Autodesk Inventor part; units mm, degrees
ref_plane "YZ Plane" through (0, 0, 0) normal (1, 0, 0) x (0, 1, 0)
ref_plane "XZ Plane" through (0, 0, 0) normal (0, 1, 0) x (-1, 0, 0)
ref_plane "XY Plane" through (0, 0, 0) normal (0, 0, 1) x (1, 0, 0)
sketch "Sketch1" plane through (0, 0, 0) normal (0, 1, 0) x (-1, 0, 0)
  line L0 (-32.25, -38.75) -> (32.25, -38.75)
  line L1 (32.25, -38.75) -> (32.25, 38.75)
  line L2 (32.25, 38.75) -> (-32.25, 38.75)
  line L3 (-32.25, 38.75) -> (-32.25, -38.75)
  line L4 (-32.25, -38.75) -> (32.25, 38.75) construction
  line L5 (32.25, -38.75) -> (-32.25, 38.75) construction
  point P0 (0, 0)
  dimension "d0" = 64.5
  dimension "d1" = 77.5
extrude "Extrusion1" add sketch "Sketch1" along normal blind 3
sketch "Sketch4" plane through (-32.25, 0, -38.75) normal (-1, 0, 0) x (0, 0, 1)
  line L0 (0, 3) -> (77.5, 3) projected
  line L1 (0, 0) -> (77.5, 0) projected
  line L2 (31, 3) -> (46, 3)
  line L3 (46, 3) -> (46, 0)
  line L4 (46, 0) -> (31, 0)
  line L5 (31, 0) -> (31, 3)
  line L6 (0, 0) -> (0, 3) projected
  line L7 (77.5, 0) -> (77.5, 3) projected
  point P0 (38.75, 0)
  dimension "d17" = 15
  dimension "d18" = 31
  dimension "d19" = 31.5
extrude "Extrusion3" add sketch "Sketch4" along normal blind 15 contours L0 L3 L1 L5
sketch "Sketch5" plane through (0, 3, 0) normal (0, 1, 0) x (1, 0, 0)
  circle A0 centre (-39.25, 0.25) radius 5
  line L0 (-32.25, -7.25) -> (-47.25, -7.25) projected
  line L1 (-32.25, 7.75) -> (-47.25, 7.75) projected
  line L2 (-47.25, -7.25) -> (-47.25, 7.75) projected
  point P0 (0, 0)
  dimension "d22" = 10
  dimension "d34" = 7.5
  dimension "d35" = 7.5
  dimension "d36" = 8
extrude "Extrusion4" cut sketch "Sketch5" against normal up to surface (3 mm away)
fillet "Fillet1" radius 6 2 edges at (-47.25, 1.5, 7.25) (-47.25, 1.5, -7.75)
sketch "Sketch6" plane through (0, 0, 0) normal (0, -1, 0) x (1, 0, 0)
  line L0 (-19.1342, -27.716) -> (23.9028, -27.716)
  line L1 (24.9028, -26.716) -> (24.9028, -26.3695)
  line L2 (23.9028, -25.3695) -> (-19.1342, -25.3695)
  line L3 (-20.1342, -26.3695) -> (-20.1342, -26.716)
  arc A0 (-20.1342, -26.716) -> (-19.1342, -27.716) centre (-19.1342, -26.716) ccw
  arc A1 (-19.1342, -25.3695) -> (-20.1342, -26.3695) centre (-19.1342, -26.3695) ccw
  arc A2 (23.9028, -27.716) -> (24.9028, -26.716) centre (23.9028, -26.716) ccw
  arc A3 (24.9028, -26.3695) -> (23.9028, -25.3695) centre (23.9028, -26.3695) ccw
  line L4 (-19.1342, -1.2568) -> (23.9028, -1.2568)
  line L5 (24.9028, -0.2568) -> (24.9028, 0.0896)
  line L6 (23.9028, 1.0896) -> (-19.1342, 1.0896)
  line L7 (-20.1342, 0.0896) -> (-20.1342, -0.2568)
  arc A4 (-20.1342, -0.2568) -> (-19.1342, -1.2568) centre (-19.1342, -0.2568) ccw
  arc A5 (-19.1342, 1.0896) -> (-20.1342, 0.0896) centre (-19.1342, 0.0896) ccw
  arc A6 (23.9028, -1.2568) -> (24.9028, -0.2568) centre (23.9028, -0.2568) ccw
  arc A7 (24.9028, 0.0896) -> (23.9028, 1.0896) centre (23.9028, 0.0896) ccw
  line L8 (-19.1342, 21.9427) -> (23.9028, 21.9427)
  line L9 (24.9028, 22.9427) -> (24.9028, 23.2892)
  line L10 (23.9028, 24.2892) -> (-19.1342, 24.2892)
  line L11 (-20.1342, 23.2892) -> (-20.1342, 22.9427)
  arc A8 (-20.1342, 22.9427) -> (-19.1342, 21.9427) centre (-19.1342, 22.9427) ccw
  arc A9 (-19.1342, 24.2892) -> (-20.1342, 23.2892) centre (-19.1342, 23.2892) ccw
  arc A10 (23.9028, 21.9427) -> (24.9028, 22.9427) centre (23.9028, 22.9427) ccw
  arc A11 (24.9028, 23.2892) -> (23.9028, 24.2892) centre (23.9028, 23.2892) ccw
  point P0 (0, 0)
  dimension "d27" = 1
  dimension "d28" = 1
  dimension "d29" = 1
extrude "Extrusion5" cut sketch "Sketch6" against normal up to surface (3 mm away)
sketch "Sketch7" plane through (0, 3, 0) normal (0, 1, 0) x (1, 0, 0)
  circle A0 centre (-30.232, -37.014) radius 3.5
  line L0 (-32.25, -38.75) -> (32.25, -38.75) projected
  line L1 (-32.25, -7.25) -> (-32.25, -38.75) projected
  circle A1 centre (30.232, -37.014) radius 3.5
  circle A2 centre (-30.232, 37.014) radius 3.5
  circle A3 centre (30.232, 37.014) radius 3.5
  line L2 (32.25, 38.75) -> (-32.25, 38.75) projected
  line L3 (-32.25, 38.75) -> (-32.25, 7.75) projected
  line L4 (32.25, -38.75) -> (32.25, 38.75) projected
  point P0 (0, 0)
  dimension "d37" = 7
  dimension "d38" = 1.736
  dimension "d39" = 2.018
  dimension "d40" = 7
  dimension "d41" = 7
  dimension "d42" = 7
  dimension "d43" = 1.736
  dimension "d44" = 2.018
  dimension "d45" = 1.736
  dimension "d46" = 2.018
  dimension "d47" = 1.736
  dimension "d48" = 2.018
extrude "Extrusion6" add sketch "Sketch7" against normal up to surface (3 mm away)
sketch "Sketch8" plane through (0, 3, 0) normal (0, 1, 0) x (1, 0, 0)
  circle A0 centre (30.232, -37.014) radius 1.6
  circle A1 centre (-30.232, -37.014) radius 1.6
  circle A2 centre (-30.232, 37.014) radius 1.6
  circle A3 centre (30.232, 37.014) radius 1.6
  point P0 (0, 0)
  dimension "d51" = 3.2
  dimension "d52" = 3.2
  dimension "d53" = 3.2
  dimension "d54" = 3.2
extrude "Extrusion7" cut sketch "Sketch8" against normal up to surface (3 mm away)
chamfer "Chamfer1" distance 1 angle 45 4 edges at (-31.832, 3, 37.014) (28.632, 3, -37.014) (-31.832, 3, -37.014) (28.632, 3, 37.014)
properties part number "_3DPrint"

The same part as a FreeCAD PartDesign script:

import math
import FreeCAD as App
import Part
import Sketcher

V = App.Vector


def edges_at(feature, points):
    """Names of the edges that pass closest to the given points."""
    edges = feature.Shape.Edges
    near = lambda p: min(range(len(edges)), key=lambda i: edges[i].distToShape(Part.Vertex(*p))[0])
    return sorted({f"Edge{near(p) + 1}" for p in points})


def add_polygon(sketch, points):
    """Adds a closed chain of lines whose ends are joined by coincident constraints."""
    first, n = sketch.GeometryCount, len(points)
    for a, b in zip(points, points[1:] + points[:1]):
        sketch.addGeometry(Part.LineSegment(App.Vector(*a, 0), App.Vector(*b, 0)), False)
    for i in range(n):
        sketch.addConstraint(Sketcher.Constraint("Coincident", first + i, 2, first + (i + 1) % n, 1))

doc = App.newDocument("Part")
body = doc.addObject("PartDesign::Body", "Body")

# Sketch on XZ plane
sketch1 = doc.addObject("Sketcher::SketchObject", "Sketch")
body.addObject(sketch1)
sketch1.AttachmentSupport = (doc.XZ_Plane, [""])
sketch1.MapMode = "FlatFace"
add_polygon(sketch1, [(32, 39), (32, -39), (-32, -39), (-32, 39)])  # lines 0-3
sketch1.addConstraint([
    Sketcher.Constraint("Vertical", 0),
    Sketcher.Constraint("Horizontal", 1),
    Sketcher.Constraint("Vertical", 2),
    Sketcher.Constraint("Horizontal", 3),
    Sketcher.Constraint("Symmetric", 0, 2, 2, 2, -1, 1),
    Sketcher.Constraint("DistanceX", 1, 2, 1, 1, 64.5),
    Sketcher.Constraint("DistanceY", 0, 2, 0, 1, 77.5),
])
pad1 = doc.addObject("PartDesign::Pad", "Pad")
body.addObject(pad1)
pad1.Profile = sketch1
pad1.Length = 3
pad1.Reversed = True

# Sketch on YZ plane
sketch2 = doc.addObject("Sketcher::SketchObject", "Sketch001")
body.addObject(sketch2)
sketch2.AttachmentSupport = (doc.YZ_Plane, [""])
sketch2.MapMode = "FlatFace"
sketch2.AttachmentOffset = App.Placement(V(0, 0, -32.25), App.Rotation())
add_polygon(sketch2, [(3, 7.2), (3, -7.8), (0, -7.8), (0, 7.2)])  # lines 0-3
sketch2.addConstraint([
    Sketcher.Constraint("Vertical", 0),
    Sketcher.Constraint("Horizontal", 1),
    Sketcher.Constraint("Vertical", 2),
    Sketcher.Constraint("Horizontal", 3),
    Sketcher.Constraint("PointOnObject", 1, 2, -2),
    Sketcher.Constraint("DistanceY", 0, 2, 0, 1, 15.0),
    Sketcher.Constraint("DistanceX", 1, 2, 1, 1, 3.0),
    Sketcher.Constraint("DistanceY", 0, 2, -1, 1, 7.75),
])
pad2 = doc.addObject("PartDesign::Pad", "Pad001")
body.addObject(pad2)
pad2.Profile = sketch2
pad2.Length = 15
pad2.Reversed = True

# Sketch on XZ plane
sketch3 = doc.addObject("Sketcher::SketchObject", "Sketch002")
body.addObject(sketch3)
sketch3.AttachmentSupport = (doc.XZ_Plane, [""])
sketch3.MapMode = "FlatFace"
sketch3.AttachmentOffset = App.Placement(V(0, 0, -3), App.Rotation())
sketch3.addGeometry(Part.Circle(V(-39, 0, 0), V(0, 0, 1), 5), False)
sketch3.addConstraint([
    Sketcher.Constraint("Diameter", 0, 10.0),
    Sketcher.Constraint("DistanceX", 0, 3, -1, 1, 39.25),
    Sketcher.Constraint("DistanceY", 0, 3, -1, 1, 0.25),
])
pocket1 = doc.addObject("PartDesign::Pocket", "Pocket")
body.addObject(pocket1)
pocket1.Profile = sketch3
pocket1.Length = 3
pocket1.Reversed = True
doc.recompute()

fillet = doc.addObject("PartDesign::Fillet", "Fillet")
body.addObject(fillet)
fillet.Base = (pocket1, edges_at(pocket1, [(-47.25, 1.5, 7.25), (-47.25, 1.5, -7.75)]))
fillet.Radius = 6

# Sketch on XZ plane
sketch4 = doc.addObject("Sketcher::SketchObject", "Sketch003")
body.addObject(sketch4)
sketch4.AttachmentSupport = (doc.XZ_Plane, [""])
sketch4.MapMode = "FlatFace"
sketch4.addGeometry([
    Part.ArcOfCircle(Part.Circle(V(-19.13, -26.72, 0), V(0, 0, 1), 1), math.radians(180), math.radians(270)),  # 0
    Part.LineSegment(V(-19.13, -27.72, 0), V(23.9, -27.72, 0)),  # 1
    Part.ArcOfCircle(Part.Circle(V(23.9, -26.72, 0), V(0, 0, 1), 1), math.radians(-90), math.radians(0)),  # 2
    Part.LineSegment(V(24.9, -26.72, 0), V(24.9, -26.37, 0)),  # 3
    Part.ArcOfCircle(Part.Circle(V(23.9, -26.37, 0), V(0, 0, 1), 1), math.radians(0), math.radians(90)),  # 4
    Part.LineSegment(V(23.9, -25.37, 0), V(-19.13, -25.37, 0)),  # 5
    Part.ArcOfCircle(Part.Circle(V(-19.13, -26.37, 0), V(0, 0, 1), 1), math.radians(90), math.radians(180)),  # 6
    Part.LineSegment(V(-20.13, -26.37, 0), V(-20.13, -26.72, 0)),  # 7
    Part.ArcOfCircle(Part.Circle(V(-19.13, -0.26, 0), V(0, 0, 1), 1), math.radians(180), math.radians(270)),  # 8
    Part.LineSegment(V(-19.13, -1.26, 0), V(23.9, -1.26, 0)),  # 9
    Part.ArcOfCircle(Part.Circle(V(23.9, -0.26, 0), V(0, 0, 1), 1), math.radians(-90), math.radians(0)),  # 10
    Part.LineSegment(V(24.9, -0.26, 0), V(24.9, 0.09, 0)),  # 11
    Part.ArcOfCircle(Part.Circle(V(23.9, 0.09, 0), V(0, 0, 1), 1), math.radians(0), math.radians(90)),  # 12
    Part.LineSegment(V(23.9, 1.09, 0), V(-19.13, 1.09, 0)),  # 13
    Part.ArcOfCircle(Part.Circle(V(-19.13, 0.09, 0), V(0, 0, 1), 1), math.radians(90), math.radians(180)),  # 14
    Part.LineSegment(V(-20.13, 0.09, 0), V(-20.13, -0.26, 0)),  # 15
    Part.ArcOfCircle(Part.Circle(V(-19.13, 22.94, 0), V(0, 0, 1), 1), math.radians(180), math.radians(270)),  # 16
    Part.LineSegment(V(-19.13, 21.94, 0), V(23.9, 21.94, 0)),  # 17
    Part.ArcOfCircle(Part.Circle(V(23.9, 22.94, 0), V(0, 0, 1), 1), math.radians(-90), math.radians(0)),  # 18
    Part.LineSegment(V(24.9, 22.94, 0), V(24.9, 23.29, 0)),  # 19
    Part.ArcOfCircle(Part.Circle(V(23.9, 23.29, 0), V(0, 0, 1), 1), math.radians(0), math.radians(90)),  # 20
    Part.LineSegment(V(23.9, 24.29, 0), V(-19.13, 24.29, 0)),  # 21
    Part.ArcOfCircle(Part.Circle(V(-19.13, 23.29, 0), V(0, 0, 1), 1), math.radians(90), math.radians(180)),  # 22
    Part.LineSegment(V(-20.13, 23.29, 0), V(-20.13, 22.94, 0)),  # 23
], False)
sketch4.addConstraint([
    Sketcher.Constraint("Tangent", 0, 2, 1, 1),
    Sketcher.Constraint("Tangent", 1, 2, 2, 1),
    Sketcher.Constraint("Tangent", 2, 2, 3, 1),
    Sketcher.Constraint("Tangent", 3, 2, 4, 1),
    Sketcher.Constraint("Tangent", 4, 2, 5, 1),
    Sketcher.Constraint("Tangent", 5, 2, 6, 1),
    Sketcher.Constraint("Tangent", 6, 2, 7, 1),
    Sketcher.Constraint("Tangent", 7, 2, 0, 1),
    Sketcher.Constraint("Tangent", 8, 2, 9, 1),
    Sketcher.Constraint("Tangent", 9, 2, 10, 1),
    Sketcher.Constraint("Tangent", 10, 2, 11, 1),
    Sketcher.Constraint("Tangent", 11, 2, 12, 1),
    Sketcher.Constraint("Tangent", 12, 2, 13, 1),
    Sketcher.Constraint("Tangent", 13, 2, 14, 1),
    Sketcher.Constraint("Tangent", 14, 2, 15, 1),
    Sketcher.Constraint("Tangent", 15, 2, 8, 1),
    Sketcher.Constraint("Tangent", 16, 2, 17, 1),
    Sketcher.Constraint("Tangent", 17, 2, 18, 1),
    Sketcher.Constraint("Tangent", 18, 2, 19, 1),
    Sketcher.Constraint("Tangent", 19, 2, 20, 1),
    Sketcher.Constraint("Tangent", 20, 2, 21, 1),
    Sketcher.Constraint("Tangent", 21, 2, 22, 1),
    Sketcher.Constraint("Tangent", 22, 2, 23, 1),
    Sketcher.Constraint("Tangent", 23, 2, 16, 1),
    Sketcher.Constraint("Horizontal", 1),
    Sketcher.Constraint("Vertical", 3),
    Sketcher.Constraint("Horizontal", 5),
    Sketcher.Constraint("Vertical", 7),
    Sketcher.Constraint("Horizontal", 9),
    Sketcher.Constraint("Vertical", 11),
    Sketcher.Constraint("Horizontal", 13),
    Sketcher.Constraint("Vertical", 15),
    Sketcher.Constraint("Horizontal", 17),
    Sketcher.Constraint("Vertical", 19),
    Sketcher.Constraint("Horizontal", 21),
    Sketcher.Constraint("Vertical", 23),
    Sketcher.Constraint("Equal", 0, 2),
    Sketcher.Constraint("Equal", 2, 4),
    Sketcher.Constraint("Equal", 4, 6),
    Sketcher.Constraint("Equal", 6, 8),
    Sketcher.Constraint("Equal", 8, 10),
    Sketcher.Constraint("Equal", 10, 12),
    Sketcher.Constraint("Equal", 12, 14),
    Sketcher.Constraint("Equal", 14, 16),
    Sketcher.Constraint("Equal", 16, 18),
    Sketcher.Constraint("Equal", 18, 20),
    Sketcher.Constraint("Equal", 20, 22),
    Sketcher.Constraint("Vertical", 6, 3, 8, 3),
    Sketcher.Constraint("Vertical", 4, 3, 10, 3),
    Sketcher.Constraint("Vertical", 14, 3, 16, 3),
    Sketcher.Constraint("Vertical", 12, 3, 18, 3),
    Sketcher.Constraint("Equal", 7, 11),
    Sketcher.Constraint("Equal", 15, 19),
    Sketcher.Constraint("Radius", 0, 1.0),
    Sketcher.Constraint("DistanceX", 1, 1, 1, 2, 43.037),
    Sketcher.Constraint("DistanceY", 3, 1, 3, 2, 0.3465),
    Sketcher.Constraint("DistanceY", 0, 3, -1, 1, 26.716),
    Sketcher.Constraint("DistanceY", 4, 3, 12, 3, 26.459),
    Sketcher.Constraint("DistanceY", 14, 3, 16, 3, 22.853),
    Sketcher.Constraint("DistanceX", 0, 3, -1, 1, 19.1342),
])
pocket2 = doc.addObject("PartDesign::Pocket", "Pocket001")
body.addObject(pocket2)
pocket2.Profile = sketch4
pocket2.Length = 3

# Sketch on XZ plane
sketch5 = doc.addObject("Sketcher::SketchObject", "Sketch004")
body.addObject(sketch5)
sketch5.AttachmentSupport = (doc.XZ_Plane, [""])
sketch5.MapMode = "FlatFace"
sketch5.AttachmentOffset = App.Placement(V(0, 0, -3), App.Rotation())
sketch5.addGeometry([
    Part.Circle(V(-30.2, 37, 0), V(0, 0, 1), 3.5),
    Part.Circle(V(-30.2, -37, 0), V(0, 0, 1), 3.5),
    Part.Circle(V(30.2, -37, 0), V(0, 0, 1), 3.5),
    Part.Circle(V(30.2, 37, 0), V(0, 0, 1), 3.5),
], False)
sketch5.addConstraint([
    Sketcher.Constraint("Equal", 0, 1),
    Sketcher.Constraint("Equal", 1, 2),
    Sketcher.Constraint("Equal", 2, 3),
    Sketcher.Constraint("Symmetric", 0, 3, 2, 3, -1, 1),
    Sketcher.Constraint("Symmetric", 1, 3, 3, 3, -1, 1),
    Sketcher.Constraint("Symmetric", 1, 3, 2, 3, -2),
    Sketcher.Constraint("Diameter", 0, 7.0),
    Sketcher.Constraint("DistanceX", 0, 3, -1, 1, 30.232),
    Sketcher.Constraint("DistanceY", -1, 1, 0, 3, 37.014),
])
pad3 = doc.addObject("PartDesign::Pad", "Pad002")
body.addObject(pad3)
pad3.Profile = sketch5
pad3.Length = 3

# Sketch on XZ plane
sketch6 = doc.addObject("Sketcher::SketchObject", "Sketch005")
body.addObject(sketch6)
sketch6.AttachmentSupport = (doc.XZ_Plane, [""])
sketch6.MapMode = "FlatFace"
sketch6.AttachmentOffset = App.Placement(V(0, 0, -3), App.Rotation())
sketch6.addGeometry([
    Part.Circle(V(30.2, 37, 0), V(0, 0, 1), 1.6),
    Part.Circle(V(-30.2, 37, 0), V(0, 0, 1), 1.6),
    Part.Circle(V(-30.2, -37, 0), V(0, 0, 1), 1.6),
    Part.Circle(V(30.2, -37, 0), V(0, 0, 1), 1.6),
], False)
sketch6.addConstraint([
    Sketcher.Constraint("Equal", 0, 1),
    Sketcher.Constraint("Equal", 1, 2),
    Sketcher.Constraint("Equal", 2, 3),
    Sketcher.Constraint("Symmetric", 0, 3, 2, 3, -1, 1),
    Sketcher.Constraint("Symmetric", 1, 3, 3, 3, -1, 1),
    Sketcher.Constraint("Symmetric", 0, 3, 1, 3, -2),
    Sketcher.Constraint("Diameter", 0, 3.2),
    Sketcher.Constraint("DistanceX", -1, 1, 0, 3, 30.232),
    Sketcher.Constraint("DistanceY", -1, 1, 0, 3, 37.014),
])
pocket3 = doc.addObject("PartDesign::Pocket", "Pocket002")
body.addObject(pocket3)
pocket3.Profile = sketch6
pocket3.Length = 3
pocket3.Reversed = True
doc.recompute()

chamfer = doc.addObject("PartDesign::Chamfer", "Chamfer")
body.addObject(chamfer)
chamfer.Base = (pocket3, edges_at(pocket3, [
    (-31.832, 3, 37.014),
    (28.632, 3, -37.014),
    (-31.832, 3, -37.014),
    (28.632, 3, 37.014),
]))
chamfer.Size = 1

doc.recompute()
